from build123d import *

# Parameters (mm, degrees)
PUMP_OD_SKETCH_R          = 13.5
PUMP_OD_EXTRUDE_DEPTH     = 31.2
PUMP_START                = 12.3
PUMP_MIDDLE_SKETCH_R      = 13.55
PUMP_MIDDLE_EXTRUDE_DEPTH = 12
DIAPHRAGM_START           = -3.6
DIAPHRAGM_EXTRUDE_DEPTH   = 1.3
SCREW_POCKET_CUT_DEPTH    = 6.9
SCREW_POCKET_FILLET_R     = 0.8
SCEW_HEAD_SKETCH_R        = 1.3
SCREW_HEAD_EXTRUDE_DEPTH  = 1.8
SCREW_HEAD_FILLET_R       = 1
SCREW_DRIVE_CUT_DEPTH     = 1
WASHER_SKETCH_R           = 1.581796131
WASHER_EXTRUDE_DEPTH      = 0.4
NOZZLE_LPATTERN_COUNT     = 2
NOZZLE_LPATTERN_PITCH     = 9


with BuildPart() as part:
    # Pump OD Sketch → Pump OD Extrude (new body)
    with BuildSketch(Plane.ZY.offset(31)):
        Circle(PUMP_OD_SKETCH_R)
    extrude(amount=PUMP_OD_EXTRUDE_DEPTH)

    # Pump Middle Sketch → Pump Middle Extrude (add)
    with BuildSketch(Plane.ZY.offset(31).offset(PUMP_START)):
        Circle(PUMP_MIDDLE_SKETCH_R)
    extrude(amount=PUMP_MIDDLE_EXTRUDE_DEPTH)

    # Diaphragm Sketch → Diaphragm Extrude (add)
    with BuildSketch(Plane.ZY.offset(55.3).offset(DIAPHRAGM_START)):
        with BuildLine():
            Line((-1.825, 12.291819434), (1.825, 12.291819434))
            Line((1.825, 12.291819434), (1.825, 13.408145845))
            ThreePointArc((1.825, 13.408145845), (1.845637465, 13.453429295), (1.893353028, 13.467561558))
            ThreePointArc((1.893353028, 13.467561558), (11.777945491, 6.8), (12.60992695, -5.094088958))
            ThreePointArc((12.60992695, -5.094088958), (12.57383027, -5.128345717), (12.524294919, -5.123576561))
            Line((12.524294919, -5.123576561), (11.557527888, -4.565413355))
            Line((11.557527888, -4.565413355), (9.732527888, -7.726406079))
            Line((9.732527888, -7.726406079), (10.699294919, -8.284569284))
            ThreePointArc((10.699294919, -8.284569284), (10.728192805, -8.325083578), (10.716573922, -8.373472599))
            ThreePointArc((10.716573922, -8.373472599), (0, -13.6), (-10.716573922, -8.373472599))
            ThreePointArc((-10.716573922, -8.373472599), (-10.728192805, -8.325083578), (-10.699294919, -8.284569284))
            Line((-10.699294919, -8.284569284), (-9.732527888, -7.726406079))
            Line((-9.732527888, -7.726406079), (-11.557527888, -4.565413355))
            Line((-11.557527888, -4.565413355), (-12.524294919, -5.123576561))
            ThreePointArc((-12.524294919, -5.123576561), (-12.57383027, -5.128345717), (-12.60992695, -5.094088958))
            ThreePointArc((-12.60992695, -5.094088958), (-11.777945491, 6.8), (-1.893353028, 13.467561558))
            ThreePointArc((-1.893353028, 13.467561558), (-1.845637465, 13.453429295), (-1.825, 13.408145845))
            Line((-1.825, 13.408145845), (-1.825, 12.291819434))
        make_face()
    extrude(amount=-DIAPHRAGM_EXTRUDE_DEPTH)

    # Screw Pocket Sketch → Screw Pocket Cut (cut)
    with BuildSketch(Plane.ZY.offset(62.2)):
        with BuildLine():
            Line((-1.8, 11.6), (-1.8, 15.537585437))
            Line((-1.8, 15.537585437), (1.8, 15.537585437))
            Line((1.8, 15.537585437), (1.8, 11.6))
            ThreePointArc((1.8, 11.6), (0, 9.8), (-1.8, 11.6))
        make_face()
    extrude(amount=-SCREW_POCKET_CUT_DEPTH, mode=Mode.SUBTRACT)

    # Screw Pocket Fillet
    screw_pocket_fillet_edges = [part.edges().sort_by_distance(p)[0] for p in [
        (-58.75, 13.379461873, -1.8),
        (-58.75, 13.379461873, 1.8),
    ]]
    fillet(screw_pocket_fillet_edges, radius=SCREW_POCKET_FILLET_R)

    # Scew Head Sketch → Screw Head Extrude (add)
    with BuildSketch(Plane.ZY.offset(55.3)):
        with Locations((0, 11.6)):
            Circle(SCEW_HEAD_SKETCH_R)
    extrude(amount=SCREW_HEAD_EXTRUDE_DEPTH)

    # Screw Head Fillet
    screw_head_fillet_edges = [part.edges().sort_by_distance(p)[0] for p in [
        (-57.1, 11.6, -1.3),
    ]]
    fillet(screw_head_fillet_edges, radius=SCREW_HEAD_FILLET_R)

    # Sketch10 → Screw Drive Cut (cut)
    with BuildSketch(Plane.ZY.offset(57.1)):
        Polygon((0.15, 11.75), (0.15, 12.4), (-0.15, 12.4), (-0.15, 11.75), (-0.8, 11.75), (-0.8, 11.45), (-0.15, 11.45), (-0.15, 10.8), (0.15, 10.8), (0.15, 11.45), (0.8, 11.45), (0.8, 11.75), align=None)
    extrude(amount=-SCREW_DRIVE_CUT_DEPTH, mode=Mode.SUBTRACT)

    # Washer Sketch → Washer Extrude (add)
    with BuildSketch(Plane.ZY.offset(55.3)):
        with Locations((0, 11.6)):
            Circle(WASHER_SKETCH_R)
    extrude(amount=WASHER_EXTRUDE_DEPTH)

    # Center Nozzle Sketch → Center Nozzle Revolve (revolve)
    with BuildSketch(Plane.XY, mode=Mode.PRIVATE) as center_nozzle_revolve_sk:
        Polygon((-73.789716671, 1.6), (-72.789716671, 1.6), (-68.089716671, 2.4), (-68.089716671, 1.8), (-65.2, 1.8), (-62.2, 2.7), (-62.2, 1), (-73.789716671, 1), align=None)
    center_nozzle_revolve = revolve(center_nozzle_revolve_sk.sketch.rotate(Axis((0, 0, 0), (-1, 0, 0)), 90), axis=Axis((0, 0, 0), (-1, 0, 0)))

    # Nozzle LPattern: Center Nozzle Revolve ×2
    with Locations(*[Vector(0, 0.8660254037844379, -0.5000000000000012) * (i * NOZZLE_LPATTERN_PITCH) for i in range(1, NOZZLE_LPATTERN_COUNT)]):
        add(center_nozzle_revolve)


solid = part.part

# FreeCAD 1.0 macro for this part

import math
import FreeCAD as App
import Part
import Sketcher

V = App.Vector
Q = App.Units.Quantity


def edges_at(feature, points):
    """Names of the edges that pass closest to the given points."""
    edges = feature.Shape.Edges
    near = lambda p: min(range(len(edges)), key=lambda i: edges[i].distToShape(Part.Vertex(*p))[0])
    return sorted({f"Edge{near(p) + 1}" for p in points})

doc = App.newDocument("Part")
params = doc.addObject("Spreadsheet::Sheet", "Params")
for row, (alias, value) in enumerate([
    ("sketch1_diameter", "27 mm"),
    ("pad1_length", "31.2 mm"),
    ("sketch2_diameter", "27.1 mm"),
    ("pad2_length", "12 mm"),
    ("sketch3_radius", "13.6 mm"),
    ("sketch3_radius2", "0.06 mm"),
    ("sketch3_height", "3.65 mm"),
    ("sketch3_length", "3.65 mm"),
    ("pad3_length", "1.3 mm"),
    ("sketch4_radius", "1.8 mm"),
    ("pocket1_length", "6.9 mm"),
    ("fillet_radius", "0.8 mm"),
    ("sketch5_diameter", "2.6 mm"),
    ("pad4_length", "1.8 mm"),
    ("fillet2_radius", "1 mm"),
    ("sketch6_width", "0.3 mm"),
    ("sketch6_width2", "0.65 mm"),
    ("pocket2_length", "1 mm"),
    ("pad5_length", "0.4 mm"),
    ("sketch8_width", "1 mm"),
    ("sketch8_height", "0.6 mm"),
    ("sketch8_height2", "1.7 mm"),
    ("revolution_angle", "360 deg"),
    ("linearpattern_pitch", "9 mm"),
], start=1):
    params.set(f"A{row}", alias)
    params.set(f"B{row}", "=" + value)
    params.setAlias(f"B{row}", alias)

body = doc.addObject("PartDesign::Body", "Body")

sketch1 = body.newObject("Sketcher::SketchObject", "Sketch")
sketch1.AttachmentSupport = (doc.getObject("YZ_Plane"), [""])
sketch1.MapMode = "FlatFace"
sketch1.AttachmentOffset = App.Placement(V(0, 0, -31), App.Rotation())
sketch1.addGeometry(Part.Circle(V(0, 0, 0), V(0, 0, 1), 14), False)
sketch1.addConstraint([
    Sketcher.Constraint("Coincident", 0, 3, -1, 1),
    Sketcher.Constraint("Diameter", 0, 27.0),
])
sketch1.setExpression("Constraints[1]", "Params.sketch1_diameter")
pad1 = body.newObject("PartDesign::Pad", "Pad")
pad1.Profile = sketch1
pad1.setExpression("Length", "Params.pad1_length")
pad1.Reversed = True

sketch2 = body.newObject("Sketcher::SketchObject", "Sketch001")
sketch2.AttachmentSupport = (doc.getObject("YZ_Plane"), [""])
sketch2.MapMode = "FlatFace"
sketch2.AttachmentOffset = App.Placement(V(0, 0, -43.3), App.Rotation())
sketch2.addGeometry(Part.Circle(V(0, 0, 0), V(0, 0, 1), 14), False)
sketch2.addConstraint([
    Sketcher.Constraint("Coincident", 0, 3, -1, 1),
    Sketcher.Constraint("Diameter", 0, 27.1),
])
sketch2.setExpression("Constraints[1]", "Params.sketch2_diameter")
pad2 = body.newObject("PartDesign::Pad", "Pad001")
pad2.Profile = sketch2
pad2.setExpression("Length", "Params.pad2_length")
pad2.Reversed = True

sketch3 = body.newObject("Sketcher::SketchObject", "Sketch002")
sketch3.AttachmentSupport = (doc.getObject("YZ_Plane"), [""])
sketch3.MapMode = "FlatFace"
sketch3.AttachmentOffset = App.Placement(V(0, 0, -51.7), App.Rotation())
sketch3.addGeometry([
    Part.LineSegment(V(12.29, 1.82, 0), V(12.29, -1.82, 0)),
    Part.LineSegment(V(12.29, -1.82, 0), V(13.41, -1.82, 0)),
    Part.ArcOfCircle(Part.Circle(V(13.41, -1.89, 0), V(0, 0, 1), 0.06), math.radians(-8), math.radians(90)),
    Part.ArcOfCircle(Part.Circle(V(0, 0, 0), V(0, 0, 1), 13.6), math.radians(-112), math.radians(-8)),
    Part.ArcOfCircle(Part.Circle(V(-5.07, -12.55, 0), V(0, 0, 1), 0.06), math.radians(150), math.radians(248)),
    Part.LineSegment(V(-5.12, -12.52, 0), V(-4.57, -11.56, 0)),
    Part.LineSegment(V(-4.57, -11.56, 0), V(-7.73, -9.73, 0)),
    Part.LineSegment(V(-7.73, -9.73, 0), V(-8.28, -10.7, 0)),
    Part.ArcOfCircle(Part.Circle(V(-8.34, -10.67, 0), V(0, 0, 1), 0.06), math.radians(-128), math.radians(-30)),
    Part.ArcOfCircle(Part.Circle(V(0, 0, 0), V(0, 0, 1), 13.6), math.radians(128), math.radians(232)),
    Part.ArcOfCircle(Part.Circle(V(-8.34, 10.67, 0), V(0, 0, 1), 0.06), math.radians(30), math.radians(128)),
    Part.LineSegment(V(-8.28, 10.7, 0), V(-7.73, 9.73, 0)),
    Part.LineSegment(V(-7.73, 9.73, 0), V(-4.57, 11.56, 0)),
    Part.LineSegment(V(-4.57, 11.56, 0), V(-5.12, 12.52, 0)),
    Part.ArcOfCircle(Part.Circle(V(-5.07, 12.55, 0), V(0, 0, 1), 0.06), math.radians(112), math.radians(210)),
    Part.ArcOfCircle(Part.Circle(V(0, 0, 0), V(0, 0, 1), 13.6), math.radians(8), math.radians(112)),
    Part.ArcOfCircle(Part.Circle(V(13.41, 1.89, 0), V(0, 0, 1), 0.06), math.radians(-90), math.radians(8)),
    Part.LineSegment(V(13.41, 1.82, 0), V(12.29, 1.82, 0)),
], False)
sketch3.addConstraint([
    Sketcher.Constraint("Coincident", 0, 2, 1, 1),
    Sketcher.Constraint("Tangent", 1, 2, 2, 2),
    Sketcher.Constraint("Tangent", 2, 1, 3, 2),
    Sketcher.Constraint("Tangent", 3, 1, 4, 2),
    Sketcher.Constraint("Tangent", 4, 1, 5, 1),
    Sketcher.Constraint("Coincident", 5, 2, 6, 1),
    Sketcher.Constraint("Coincident", 6, 2, 7, 1),
    Sketcher.Constraint("Tangent", 7, 2, 8, 2),
    Sketcher.Constraint("Tangent", 8, 1, 9, 2),
    Sketcher.Constraint("Tangent", 9, 1, 10, 2),
    Sketcher.Constraint("Tangent", 10, 1, 11, 1),
    Sketcher.Constraint("Coincident", 11, 2, 12, 1),
    Sketcher.Constraint("Coincident", 12, 2, 13, 1),
    Sketcher.Constraint("Tangent", 13, 2, 14, 2),
    Sketcher.Constraint("Tangent", 14, 1, 15, 2),
    Sketcher.Constraint("Tangent", 15, 1, 16, 2),
    Sketcher.Constraint("Tangent", 16, 1, 17, 1),
    Sketcher.Constraint("Coincident", 17, 2, 0, 1),
    Sketcher.Constraint("Vertical", 0),
    Sketcher.Constraint("Horizontal", 1),
    Sketcher.Constraint("Horizontal", 17),
    Sketcher.Constraint("Coincident", 3, 3, -1, 1),
    Sketcher.Constraint("Coincident", 9, 3, -1, 1),
    Sketcher.Constraint("Coincident", 15, 3, -1, 1),
    Sketcher.Constraint("Equal", 2, 4),
    Sketcher.Constraint("Equal", 4, 8),
    Sketcher.Constraint("Equal", 3, 9),
    Sketcher.Constraint("Equal", 8, 10),
    Sketcher.Constraint("Equal", 10, 14),
    Sketcher.Constraint("Equal", 9, 15),
    Sketcher.Constraint("Equal", 14, 16),
    Sketcher.Constraint("Symmetric", 7, 2, 10, 1, -1),
    Sketcher.Constraint("Symmetric", 5, 2, 12, 2, -1),
    Sketcher.Constraint("Perpendicular", 5, 6),
    Sketcher.Constraint("Perpendicular", 6, 7),
    Sketcher.Constraint("Perpendicular", 11, 12),
    Sketcher.Constraint("Perpendicular", 12, 13),
    Sketcher.Constraint("Vertical", 2, 3, 16, 3),
    Sketcher.Constraint("Equal", 5, 7),
    Sketcher.Constraint("Radius", 3, 13.6),
    Sketcher.Constraint("Angle", 5, Q("60 deg")),
    Sketcher.Constraint("Radius", 2, 0.06),
    Sketcher.Constraint("DistanceY", 0, 2, 0, 1, 3.65),
    Sketcher.Constraint("Distance", 6, 3.65),
    Sketcher.Constraint("DistanceX", 4, 3, 5, 2, 0.506202),
    Sketcher.Constraint("DistanceX", 1, 1, 1, 2, 1.116326),
])
sketch3.setExpression("Constraints[39]", "Params.sketch3_radius")
sketch3.setExpression("Constraints[41]", "Params.sketch3_radius2")
sketch3.setExpression("Constraints[42]", "Params.sketch3_height")
sketch3.setExpression("Constraints[43]", "Params.sketch3_length")
pad3 = body.newObject("PartDesign::Pad", "Pad002")
pad3.Profile = sketch3
pad3.setExpression("Length", "Params.pad3_length")

sketch4 = body.newObject("Sketcher::SketchObject", "Sketch003")
sketch4.AttachmentSupport = (doc.getObject("YZ_Plane"), [""])
sketch4.MapMode = "FlatFace"
sketch4.AttachmentOffset = App.Placement(V(0, 0, -62.2), App.Rotation())
sketch4.addGeometry([
    Part.LineSegment(V(15.5, -1.8, 0), V(11.6, -1.8, 0)),
    Part.ArcOfCircle(Part.Circle(V(11.6, 0, 0), V(0, 0, 1), 1.8), math.radians(90), math.radians(270)),
    Part.LineSegment(V(11.6, 1.8, 0), V(15.5, 1.8, 0)),
    Part.LineSegment(V(15.5, 1.8, 0), V(15.5, -1.8, 0)),
], False)
sketch4.addConstraint([
    Sketcher.Constraint("Tangent", 0, 2, 1, 2),
    Sketcher.Constraint("Tangent", 1, 1, 2, 1),
    Sketcher.Constraint("Coincident", 2, 2, 3, 1),
    Sketcher.Constraint("Coincident", 3, 2, 0, 1),
    Sketcher.Constraint("Horizontal", 0),
    Sketcher.Constraint("Horizontal", 2),
    Sketcher.Constraint("Vertical", 3),
    Sketcher.Constraint("PointOnObject", 1, 3, -1),
    Sketcher.Constraint("Radius", 1, 1.8),
    Sketcher.Constraint("DistanceX", -1, 1, 1, 3, 11.6),
    Sketcher.Constraint("DistanceX", 0, 2, 0, 1, 3.937585),
])
sketch4.setExpression("Constraints[8]", "Params.sketch4_radius")
pocket1 = body.newObject("PartDesign::Pocket", "Pocket")
pocket1.Profile = sketch4
pocket1.setExpression("Length", "Params.pocket1_length")
pocket1.Reversed = True
doc.recompute()

fillet = body.newObject("PartDesign::Fillet", "Fillet")
fillet.Base = (pocket1, edges_at(pocket1, [(-58.75, 13.379, -1.8), (-58.75, 13.379, 1.8)]))
fillet.setExpression("Radius", "Params.fillet_radius")

sketch5 = body.newObject("Sketcher::SketchObject", "Sketch004")
sketch5.AttachmentSupport = (doc.getObject("YZ_Plane"), [""])
sketch5.MapMode = "FlatFace"
sketch5.AttachmentOffset = App.Placement(V(0, 0, -55.3), App.Rotation())
sketch5.addGeometry(Part.Circle(V(11.6, 0, 0), V(0, 0, 1), 1.3), False)
sketch5.addConstraint([
    Sketcher.Constraint("PointOnObject", 0, 3, -1),
    Sketcher.Constraint("Diameter", 0, 2.6),
    Sketcher.Constraint("DistanceX", -1, 1, 0, 3, 11.6),
])
sketch5.setExpression("Constraints[1]", "Params.sketch5_diameter")
pad4 = body.newObject("PartDesign::Pad", "Pad003")
pad4.Profile = sketch5
pad4.setExpression("Length", "Params.pad4_length")
pad4.Reversed = True
doc.recompute()

fillet2 = body.newObject("PartDesign::Fillet", "Fillet001")
fillet2.Base = (pad4, edges_at(pad4, [(-57.1, 11.6, -1.3)]))
fillet2.setExpression("Radius", "Params.fillet2_radius")

sketch6 = body.newObject("Sketcher::SketchObject", "Sketch005")
sketch6.AttachmentSupport = (doc.getObject("YZ_Plane"), [""])
sketch6.MapMode = "FlatFace"
sketch6.AttachmentOffset = App.Placement(V(0, 0, -57.1), App.Rotation())
sketch6.addGeometry([
    Part.LineSegment(V(11.75, 0.15, 0), V(12.4, 0.15, 0)),
    Part.LineSegment(V(12.4, 0.15, 0), V(12.4, -0.15, 0)),
    Part.LineSegment(V(12.4, -0.15, 0), V(11.75, -0.15, 0)),
    Part.LineSegment(V(11.75, -0.15, 0), V(11.75, -0.8, 0)),
    Part.LineSegment(V(11.75, -0.8, 0), V(11.45, -0.8, 0)),
    Part.LineSegment(V(11.45, -0.8, 0), V(11.45, -0.15, 0)),
    Part.LineSegment(V(11.45, -0.15, 0), V(10.8, -0.15, 0)),
    Part.LineSegment(V(10.8, -0.15, 0), V(10.8, 0.15, 0)),
    Part.LineSegment(V(10.8, 0.15, 0), V(11.45, 0.15, 0)),
    Part.LineSegment(V(11.45, 0.15, 0), V(11.45, 0.8, 0)),
    Part.LineSegment(V(11.45, 0.8, 0), V(11.75, 0.8, 0)),
    Part.LineSegment(V(11.75, 0.8, 0), V(11.75, 0.15, 0)),
], False)
sketch6.addConstraint([
    Sketcher.Constraint("Coincident", 0, 2, 1, 1),
    Sketcher.Constraint("Coincident", 1, 2, 2, 1),
    Sketcher.Constraint("Coincident", 2, 2, 3, 1),
    Sketcher.Constraint("Coincident", 3, 2, 4, 1),
    Sketcher.Constraint("Coincident", 4, 2, 5, 1),
    Sketcher.Constraint("Coincident", 5, 2, 6, 1),
    Sketcher.Constraint("Coincident", 6, 2, 7, 1),
    Sketcher.Constraint("Coincident", 7, 2, 8, 1),
    Sketcher.Constraint("Coincident", 8, 2, 9, 1),
    Sketcher.Constraint("Coincident", 9, 2, 10, 1),
    Sketcher.Constraint("Coincident", 10, 2, 11, 1),
    Sketcher.Constraint("Coincident", 11, 2, 0, 1),
    Sketcher.Constraint("Horizontal", 0),
    Sketcher.Constraint("Vertical", 1),
    Sketcher.Constraint("Horizontal", 2),
    Sketcher.Constraint("Vertical", 3),
    Sketcher.Constraint("Horizontal", 4),
    Sketcher.Constraint("Vertical", 5),
    Sketcher.Constraint("Horizontal", 6),
    Sketcher.Constraint("Vertical", 7),
    Sketcher.Constraint("Horizontal", 8),
    Sketcher.Constraint("Vertical", 9),
    Sketcher.Constraint("Horizontal", 10),
    Sketcher.Constraint("Vertical", 11),
    Sketcher.Constraint("Symmetric", 5, 2, 8, 2, -1),
    Sketcher.Constraint("Symmetric", 3, 2, 10, 2, -1),
    Sketcher.Constraint("Horizontal", 2, 2, 5, 2),
    Sketcher.Constraint("Horizontal", 0, 2, 7, 2),
    Sketcher.Constraint("Equal", 2, 6),
    Sketcher.Constraint("Equal", 10, 1),
    Sketcher.Constraint("Equal", 8, 3),
    Sketcher.Constraint("DistanceX", 4, 2, 4, 1, 0.3),
    Sketcher.Constraint("DistanceX", 0, 1, 0, 2, 0.65),
    Sketcher.Constraint("DistanceX", -1, 1, 0, 2, 12.4),
])
sketch6.setExpression("Constraints[31]", "Params.sketch6_width")
sketch6.setExpression("Constraints[32]", "Params.sketch6_width2")
pocket2 = body.newObject("PartDesign::Pocket", "Pocket001")
pocket2.Profile = sketch6
pocket2.setExpression("Length", "Params.pocket2_length")
pocket2.Reversed = True

sketch7 = body.newObject("Sketcher::SketchObject", "Sketch006")
sketch7.AttachmentSupport = (doc.getObject("YZ_Plane"), [""])
sketch7.MapMode = "FlatFace"
sketch7.AttachmentOffset = App.Placement(V(0, 0, -55.3), App.Rotation())
sketch7.addGeometry(Part.Circle(V(11.6, 0, 0), V(0, 0, 1), 1.6), False)
sketch7.addConstraint([
    Sketcher.Constraint("PointOnObject", 0, 3, -1),
    Sketcher.Constraint("DistanceX", -1, 1, 0, 3, 11.6),
    Sketcher.Constraint("Diameter", 0, 3.163592),
])
pad5 = body.newObject("PartDesign::Pad", "Pad004")
pad5.Profile = sketch7
pad5.setExpression("Length", "Params.pad5_length")
pad5.Reversed = True

sketch8 = body.newObject("Sketcher::SketchObject", "Sketch007")
sketch8.AttachmentSupport = (doc.getObject("XY_Plane"), [""])
sketch8.MapMode = "FlatFace"
sketch8.addGeometry([
    Part.LineSegment(V(-72.8, 1.6, 0), V(-73.8, 1.6, 0)),
    Part.LineSegment(V(-73.8, 1.6, 0), V(-73.8, 1, 0)),
    Part.LineSegment(V(-73.8, 1, 0), V(-62.2, 1, 0)),
    Part.LineSegment(V(-62.2, 1, 0), V(-62.2, 2.7, 0)),
    Part.LineSegment(V(-62.2, 2.7, 0), V(-65.2, 1.8, 0)),
    Part.LineSegment(V(-65.2, 1.8, 0), V(-68.1, 1.8, 0)),
    Part.LineSegment(V(-68.1, 1.8, 0), V(-68.1, 2.4, 0)),
    Part.LineSegment(V(-68.1, 2.4, 0), V(-72.8, 1.6, 0)),
], False)
sketch8.addConstraint([
    Sketcher.Constraint("Coincident", 0, 2, 1, 1),
    Sketcher.Constraint("Coincident", 1, 2, 2, 1),
    Sketcher.Constraint("Coincident", 2, 2, 3, 1),
    Sketcher.Constraint("Coincident", 3, 2, 4, 1),
    Sketcher.Constraint("Coincident", 4, 2, 5, 1),
    Sketcher.Constraint("Coincident", 5, 2, 6, 1),
    Sketcher.Constraint("Coincident", 6, 2, 7, 1),
    Sketcher.Constraint("Coincident", 7, 2, 0, 1),
    Sketcher.Constraint("Horizontal", 0),
    Sketcher.Constraint("Vertical", 1),
    Sketcher.Constraint("Horizontal", 2),
    Sketcher.Constraint("Vertical", 3),
    Sketcher.Constraint("Horizontal", 5),
    Sketcher.Constraint("Vertical", 6),
    Sketcher.Constraint("Equal", 1, 6),
    Sketcher.Constraint("DistanceX", 0, 2, 0, 1, 1.0),
    Sketcher.Constraint("DistanceY", 1, 2, 1, 1, 0.6),
    Sketcher.Constraint("DistanceY", 3, 1, 3, 2, 1.7),
    Sketcher.Constraint("DistanceY", -1, 1, 1, 2, 1.0),
    Sketcher.Constraint("DistanceX", 4, 2, 2, 2, 3.0),
    Sketcher.Constraint("DistanceX", 2, 2, -1, 1, 62.2),
    Sketcher.Constraint("DistanceY", -1, 1, 4, 2, 1.8),
    Sketcher.Constraint("DistanceX", 0, 2, 5, 2, 5.7),
    Sketcher.Constraint("DistanceX", 2, 1, 2, 2, 11.589717),
])
sketch8.setExpression("Constraints[15]", "Params.sketch8_width")
sketch8.setExpression("Constraints[16]", "Params.sketch8_height")
sketch8.setExpression("Constraints[17]", "Params.sketch8_height2")
revolution = body.newObject("PartDesign::Revolution", "Revolution")
revolution.Profile = sketch8
revolution.ReferenceAxis = (sketch8, ["H_Axis"])
revolution.setExpression("Angle", "Params.revolution_angle")
doc.recompute()

datumline = body.newObject("PartDesign::Line", "DatumLine")
datumline.Placement = App.Placement(V(0, 0, 0), App.Rotation(V(0, 0, 1), V(0, 0.866025404, -0.5)))
linearpattern = body.newObject("PartDesign::LinearPattern", "LinearPattern")
linearpattern.Originals = [revolution]
linearpattern.Direction = (datumline, [""])
linearpattern.Mode = "offset"
linearpattern.setExpression("Offset", "Params.linearpattern_pitch")
linearpattern.Occurrences = 2
body.Tip = linearpattern

doc.recompute()
